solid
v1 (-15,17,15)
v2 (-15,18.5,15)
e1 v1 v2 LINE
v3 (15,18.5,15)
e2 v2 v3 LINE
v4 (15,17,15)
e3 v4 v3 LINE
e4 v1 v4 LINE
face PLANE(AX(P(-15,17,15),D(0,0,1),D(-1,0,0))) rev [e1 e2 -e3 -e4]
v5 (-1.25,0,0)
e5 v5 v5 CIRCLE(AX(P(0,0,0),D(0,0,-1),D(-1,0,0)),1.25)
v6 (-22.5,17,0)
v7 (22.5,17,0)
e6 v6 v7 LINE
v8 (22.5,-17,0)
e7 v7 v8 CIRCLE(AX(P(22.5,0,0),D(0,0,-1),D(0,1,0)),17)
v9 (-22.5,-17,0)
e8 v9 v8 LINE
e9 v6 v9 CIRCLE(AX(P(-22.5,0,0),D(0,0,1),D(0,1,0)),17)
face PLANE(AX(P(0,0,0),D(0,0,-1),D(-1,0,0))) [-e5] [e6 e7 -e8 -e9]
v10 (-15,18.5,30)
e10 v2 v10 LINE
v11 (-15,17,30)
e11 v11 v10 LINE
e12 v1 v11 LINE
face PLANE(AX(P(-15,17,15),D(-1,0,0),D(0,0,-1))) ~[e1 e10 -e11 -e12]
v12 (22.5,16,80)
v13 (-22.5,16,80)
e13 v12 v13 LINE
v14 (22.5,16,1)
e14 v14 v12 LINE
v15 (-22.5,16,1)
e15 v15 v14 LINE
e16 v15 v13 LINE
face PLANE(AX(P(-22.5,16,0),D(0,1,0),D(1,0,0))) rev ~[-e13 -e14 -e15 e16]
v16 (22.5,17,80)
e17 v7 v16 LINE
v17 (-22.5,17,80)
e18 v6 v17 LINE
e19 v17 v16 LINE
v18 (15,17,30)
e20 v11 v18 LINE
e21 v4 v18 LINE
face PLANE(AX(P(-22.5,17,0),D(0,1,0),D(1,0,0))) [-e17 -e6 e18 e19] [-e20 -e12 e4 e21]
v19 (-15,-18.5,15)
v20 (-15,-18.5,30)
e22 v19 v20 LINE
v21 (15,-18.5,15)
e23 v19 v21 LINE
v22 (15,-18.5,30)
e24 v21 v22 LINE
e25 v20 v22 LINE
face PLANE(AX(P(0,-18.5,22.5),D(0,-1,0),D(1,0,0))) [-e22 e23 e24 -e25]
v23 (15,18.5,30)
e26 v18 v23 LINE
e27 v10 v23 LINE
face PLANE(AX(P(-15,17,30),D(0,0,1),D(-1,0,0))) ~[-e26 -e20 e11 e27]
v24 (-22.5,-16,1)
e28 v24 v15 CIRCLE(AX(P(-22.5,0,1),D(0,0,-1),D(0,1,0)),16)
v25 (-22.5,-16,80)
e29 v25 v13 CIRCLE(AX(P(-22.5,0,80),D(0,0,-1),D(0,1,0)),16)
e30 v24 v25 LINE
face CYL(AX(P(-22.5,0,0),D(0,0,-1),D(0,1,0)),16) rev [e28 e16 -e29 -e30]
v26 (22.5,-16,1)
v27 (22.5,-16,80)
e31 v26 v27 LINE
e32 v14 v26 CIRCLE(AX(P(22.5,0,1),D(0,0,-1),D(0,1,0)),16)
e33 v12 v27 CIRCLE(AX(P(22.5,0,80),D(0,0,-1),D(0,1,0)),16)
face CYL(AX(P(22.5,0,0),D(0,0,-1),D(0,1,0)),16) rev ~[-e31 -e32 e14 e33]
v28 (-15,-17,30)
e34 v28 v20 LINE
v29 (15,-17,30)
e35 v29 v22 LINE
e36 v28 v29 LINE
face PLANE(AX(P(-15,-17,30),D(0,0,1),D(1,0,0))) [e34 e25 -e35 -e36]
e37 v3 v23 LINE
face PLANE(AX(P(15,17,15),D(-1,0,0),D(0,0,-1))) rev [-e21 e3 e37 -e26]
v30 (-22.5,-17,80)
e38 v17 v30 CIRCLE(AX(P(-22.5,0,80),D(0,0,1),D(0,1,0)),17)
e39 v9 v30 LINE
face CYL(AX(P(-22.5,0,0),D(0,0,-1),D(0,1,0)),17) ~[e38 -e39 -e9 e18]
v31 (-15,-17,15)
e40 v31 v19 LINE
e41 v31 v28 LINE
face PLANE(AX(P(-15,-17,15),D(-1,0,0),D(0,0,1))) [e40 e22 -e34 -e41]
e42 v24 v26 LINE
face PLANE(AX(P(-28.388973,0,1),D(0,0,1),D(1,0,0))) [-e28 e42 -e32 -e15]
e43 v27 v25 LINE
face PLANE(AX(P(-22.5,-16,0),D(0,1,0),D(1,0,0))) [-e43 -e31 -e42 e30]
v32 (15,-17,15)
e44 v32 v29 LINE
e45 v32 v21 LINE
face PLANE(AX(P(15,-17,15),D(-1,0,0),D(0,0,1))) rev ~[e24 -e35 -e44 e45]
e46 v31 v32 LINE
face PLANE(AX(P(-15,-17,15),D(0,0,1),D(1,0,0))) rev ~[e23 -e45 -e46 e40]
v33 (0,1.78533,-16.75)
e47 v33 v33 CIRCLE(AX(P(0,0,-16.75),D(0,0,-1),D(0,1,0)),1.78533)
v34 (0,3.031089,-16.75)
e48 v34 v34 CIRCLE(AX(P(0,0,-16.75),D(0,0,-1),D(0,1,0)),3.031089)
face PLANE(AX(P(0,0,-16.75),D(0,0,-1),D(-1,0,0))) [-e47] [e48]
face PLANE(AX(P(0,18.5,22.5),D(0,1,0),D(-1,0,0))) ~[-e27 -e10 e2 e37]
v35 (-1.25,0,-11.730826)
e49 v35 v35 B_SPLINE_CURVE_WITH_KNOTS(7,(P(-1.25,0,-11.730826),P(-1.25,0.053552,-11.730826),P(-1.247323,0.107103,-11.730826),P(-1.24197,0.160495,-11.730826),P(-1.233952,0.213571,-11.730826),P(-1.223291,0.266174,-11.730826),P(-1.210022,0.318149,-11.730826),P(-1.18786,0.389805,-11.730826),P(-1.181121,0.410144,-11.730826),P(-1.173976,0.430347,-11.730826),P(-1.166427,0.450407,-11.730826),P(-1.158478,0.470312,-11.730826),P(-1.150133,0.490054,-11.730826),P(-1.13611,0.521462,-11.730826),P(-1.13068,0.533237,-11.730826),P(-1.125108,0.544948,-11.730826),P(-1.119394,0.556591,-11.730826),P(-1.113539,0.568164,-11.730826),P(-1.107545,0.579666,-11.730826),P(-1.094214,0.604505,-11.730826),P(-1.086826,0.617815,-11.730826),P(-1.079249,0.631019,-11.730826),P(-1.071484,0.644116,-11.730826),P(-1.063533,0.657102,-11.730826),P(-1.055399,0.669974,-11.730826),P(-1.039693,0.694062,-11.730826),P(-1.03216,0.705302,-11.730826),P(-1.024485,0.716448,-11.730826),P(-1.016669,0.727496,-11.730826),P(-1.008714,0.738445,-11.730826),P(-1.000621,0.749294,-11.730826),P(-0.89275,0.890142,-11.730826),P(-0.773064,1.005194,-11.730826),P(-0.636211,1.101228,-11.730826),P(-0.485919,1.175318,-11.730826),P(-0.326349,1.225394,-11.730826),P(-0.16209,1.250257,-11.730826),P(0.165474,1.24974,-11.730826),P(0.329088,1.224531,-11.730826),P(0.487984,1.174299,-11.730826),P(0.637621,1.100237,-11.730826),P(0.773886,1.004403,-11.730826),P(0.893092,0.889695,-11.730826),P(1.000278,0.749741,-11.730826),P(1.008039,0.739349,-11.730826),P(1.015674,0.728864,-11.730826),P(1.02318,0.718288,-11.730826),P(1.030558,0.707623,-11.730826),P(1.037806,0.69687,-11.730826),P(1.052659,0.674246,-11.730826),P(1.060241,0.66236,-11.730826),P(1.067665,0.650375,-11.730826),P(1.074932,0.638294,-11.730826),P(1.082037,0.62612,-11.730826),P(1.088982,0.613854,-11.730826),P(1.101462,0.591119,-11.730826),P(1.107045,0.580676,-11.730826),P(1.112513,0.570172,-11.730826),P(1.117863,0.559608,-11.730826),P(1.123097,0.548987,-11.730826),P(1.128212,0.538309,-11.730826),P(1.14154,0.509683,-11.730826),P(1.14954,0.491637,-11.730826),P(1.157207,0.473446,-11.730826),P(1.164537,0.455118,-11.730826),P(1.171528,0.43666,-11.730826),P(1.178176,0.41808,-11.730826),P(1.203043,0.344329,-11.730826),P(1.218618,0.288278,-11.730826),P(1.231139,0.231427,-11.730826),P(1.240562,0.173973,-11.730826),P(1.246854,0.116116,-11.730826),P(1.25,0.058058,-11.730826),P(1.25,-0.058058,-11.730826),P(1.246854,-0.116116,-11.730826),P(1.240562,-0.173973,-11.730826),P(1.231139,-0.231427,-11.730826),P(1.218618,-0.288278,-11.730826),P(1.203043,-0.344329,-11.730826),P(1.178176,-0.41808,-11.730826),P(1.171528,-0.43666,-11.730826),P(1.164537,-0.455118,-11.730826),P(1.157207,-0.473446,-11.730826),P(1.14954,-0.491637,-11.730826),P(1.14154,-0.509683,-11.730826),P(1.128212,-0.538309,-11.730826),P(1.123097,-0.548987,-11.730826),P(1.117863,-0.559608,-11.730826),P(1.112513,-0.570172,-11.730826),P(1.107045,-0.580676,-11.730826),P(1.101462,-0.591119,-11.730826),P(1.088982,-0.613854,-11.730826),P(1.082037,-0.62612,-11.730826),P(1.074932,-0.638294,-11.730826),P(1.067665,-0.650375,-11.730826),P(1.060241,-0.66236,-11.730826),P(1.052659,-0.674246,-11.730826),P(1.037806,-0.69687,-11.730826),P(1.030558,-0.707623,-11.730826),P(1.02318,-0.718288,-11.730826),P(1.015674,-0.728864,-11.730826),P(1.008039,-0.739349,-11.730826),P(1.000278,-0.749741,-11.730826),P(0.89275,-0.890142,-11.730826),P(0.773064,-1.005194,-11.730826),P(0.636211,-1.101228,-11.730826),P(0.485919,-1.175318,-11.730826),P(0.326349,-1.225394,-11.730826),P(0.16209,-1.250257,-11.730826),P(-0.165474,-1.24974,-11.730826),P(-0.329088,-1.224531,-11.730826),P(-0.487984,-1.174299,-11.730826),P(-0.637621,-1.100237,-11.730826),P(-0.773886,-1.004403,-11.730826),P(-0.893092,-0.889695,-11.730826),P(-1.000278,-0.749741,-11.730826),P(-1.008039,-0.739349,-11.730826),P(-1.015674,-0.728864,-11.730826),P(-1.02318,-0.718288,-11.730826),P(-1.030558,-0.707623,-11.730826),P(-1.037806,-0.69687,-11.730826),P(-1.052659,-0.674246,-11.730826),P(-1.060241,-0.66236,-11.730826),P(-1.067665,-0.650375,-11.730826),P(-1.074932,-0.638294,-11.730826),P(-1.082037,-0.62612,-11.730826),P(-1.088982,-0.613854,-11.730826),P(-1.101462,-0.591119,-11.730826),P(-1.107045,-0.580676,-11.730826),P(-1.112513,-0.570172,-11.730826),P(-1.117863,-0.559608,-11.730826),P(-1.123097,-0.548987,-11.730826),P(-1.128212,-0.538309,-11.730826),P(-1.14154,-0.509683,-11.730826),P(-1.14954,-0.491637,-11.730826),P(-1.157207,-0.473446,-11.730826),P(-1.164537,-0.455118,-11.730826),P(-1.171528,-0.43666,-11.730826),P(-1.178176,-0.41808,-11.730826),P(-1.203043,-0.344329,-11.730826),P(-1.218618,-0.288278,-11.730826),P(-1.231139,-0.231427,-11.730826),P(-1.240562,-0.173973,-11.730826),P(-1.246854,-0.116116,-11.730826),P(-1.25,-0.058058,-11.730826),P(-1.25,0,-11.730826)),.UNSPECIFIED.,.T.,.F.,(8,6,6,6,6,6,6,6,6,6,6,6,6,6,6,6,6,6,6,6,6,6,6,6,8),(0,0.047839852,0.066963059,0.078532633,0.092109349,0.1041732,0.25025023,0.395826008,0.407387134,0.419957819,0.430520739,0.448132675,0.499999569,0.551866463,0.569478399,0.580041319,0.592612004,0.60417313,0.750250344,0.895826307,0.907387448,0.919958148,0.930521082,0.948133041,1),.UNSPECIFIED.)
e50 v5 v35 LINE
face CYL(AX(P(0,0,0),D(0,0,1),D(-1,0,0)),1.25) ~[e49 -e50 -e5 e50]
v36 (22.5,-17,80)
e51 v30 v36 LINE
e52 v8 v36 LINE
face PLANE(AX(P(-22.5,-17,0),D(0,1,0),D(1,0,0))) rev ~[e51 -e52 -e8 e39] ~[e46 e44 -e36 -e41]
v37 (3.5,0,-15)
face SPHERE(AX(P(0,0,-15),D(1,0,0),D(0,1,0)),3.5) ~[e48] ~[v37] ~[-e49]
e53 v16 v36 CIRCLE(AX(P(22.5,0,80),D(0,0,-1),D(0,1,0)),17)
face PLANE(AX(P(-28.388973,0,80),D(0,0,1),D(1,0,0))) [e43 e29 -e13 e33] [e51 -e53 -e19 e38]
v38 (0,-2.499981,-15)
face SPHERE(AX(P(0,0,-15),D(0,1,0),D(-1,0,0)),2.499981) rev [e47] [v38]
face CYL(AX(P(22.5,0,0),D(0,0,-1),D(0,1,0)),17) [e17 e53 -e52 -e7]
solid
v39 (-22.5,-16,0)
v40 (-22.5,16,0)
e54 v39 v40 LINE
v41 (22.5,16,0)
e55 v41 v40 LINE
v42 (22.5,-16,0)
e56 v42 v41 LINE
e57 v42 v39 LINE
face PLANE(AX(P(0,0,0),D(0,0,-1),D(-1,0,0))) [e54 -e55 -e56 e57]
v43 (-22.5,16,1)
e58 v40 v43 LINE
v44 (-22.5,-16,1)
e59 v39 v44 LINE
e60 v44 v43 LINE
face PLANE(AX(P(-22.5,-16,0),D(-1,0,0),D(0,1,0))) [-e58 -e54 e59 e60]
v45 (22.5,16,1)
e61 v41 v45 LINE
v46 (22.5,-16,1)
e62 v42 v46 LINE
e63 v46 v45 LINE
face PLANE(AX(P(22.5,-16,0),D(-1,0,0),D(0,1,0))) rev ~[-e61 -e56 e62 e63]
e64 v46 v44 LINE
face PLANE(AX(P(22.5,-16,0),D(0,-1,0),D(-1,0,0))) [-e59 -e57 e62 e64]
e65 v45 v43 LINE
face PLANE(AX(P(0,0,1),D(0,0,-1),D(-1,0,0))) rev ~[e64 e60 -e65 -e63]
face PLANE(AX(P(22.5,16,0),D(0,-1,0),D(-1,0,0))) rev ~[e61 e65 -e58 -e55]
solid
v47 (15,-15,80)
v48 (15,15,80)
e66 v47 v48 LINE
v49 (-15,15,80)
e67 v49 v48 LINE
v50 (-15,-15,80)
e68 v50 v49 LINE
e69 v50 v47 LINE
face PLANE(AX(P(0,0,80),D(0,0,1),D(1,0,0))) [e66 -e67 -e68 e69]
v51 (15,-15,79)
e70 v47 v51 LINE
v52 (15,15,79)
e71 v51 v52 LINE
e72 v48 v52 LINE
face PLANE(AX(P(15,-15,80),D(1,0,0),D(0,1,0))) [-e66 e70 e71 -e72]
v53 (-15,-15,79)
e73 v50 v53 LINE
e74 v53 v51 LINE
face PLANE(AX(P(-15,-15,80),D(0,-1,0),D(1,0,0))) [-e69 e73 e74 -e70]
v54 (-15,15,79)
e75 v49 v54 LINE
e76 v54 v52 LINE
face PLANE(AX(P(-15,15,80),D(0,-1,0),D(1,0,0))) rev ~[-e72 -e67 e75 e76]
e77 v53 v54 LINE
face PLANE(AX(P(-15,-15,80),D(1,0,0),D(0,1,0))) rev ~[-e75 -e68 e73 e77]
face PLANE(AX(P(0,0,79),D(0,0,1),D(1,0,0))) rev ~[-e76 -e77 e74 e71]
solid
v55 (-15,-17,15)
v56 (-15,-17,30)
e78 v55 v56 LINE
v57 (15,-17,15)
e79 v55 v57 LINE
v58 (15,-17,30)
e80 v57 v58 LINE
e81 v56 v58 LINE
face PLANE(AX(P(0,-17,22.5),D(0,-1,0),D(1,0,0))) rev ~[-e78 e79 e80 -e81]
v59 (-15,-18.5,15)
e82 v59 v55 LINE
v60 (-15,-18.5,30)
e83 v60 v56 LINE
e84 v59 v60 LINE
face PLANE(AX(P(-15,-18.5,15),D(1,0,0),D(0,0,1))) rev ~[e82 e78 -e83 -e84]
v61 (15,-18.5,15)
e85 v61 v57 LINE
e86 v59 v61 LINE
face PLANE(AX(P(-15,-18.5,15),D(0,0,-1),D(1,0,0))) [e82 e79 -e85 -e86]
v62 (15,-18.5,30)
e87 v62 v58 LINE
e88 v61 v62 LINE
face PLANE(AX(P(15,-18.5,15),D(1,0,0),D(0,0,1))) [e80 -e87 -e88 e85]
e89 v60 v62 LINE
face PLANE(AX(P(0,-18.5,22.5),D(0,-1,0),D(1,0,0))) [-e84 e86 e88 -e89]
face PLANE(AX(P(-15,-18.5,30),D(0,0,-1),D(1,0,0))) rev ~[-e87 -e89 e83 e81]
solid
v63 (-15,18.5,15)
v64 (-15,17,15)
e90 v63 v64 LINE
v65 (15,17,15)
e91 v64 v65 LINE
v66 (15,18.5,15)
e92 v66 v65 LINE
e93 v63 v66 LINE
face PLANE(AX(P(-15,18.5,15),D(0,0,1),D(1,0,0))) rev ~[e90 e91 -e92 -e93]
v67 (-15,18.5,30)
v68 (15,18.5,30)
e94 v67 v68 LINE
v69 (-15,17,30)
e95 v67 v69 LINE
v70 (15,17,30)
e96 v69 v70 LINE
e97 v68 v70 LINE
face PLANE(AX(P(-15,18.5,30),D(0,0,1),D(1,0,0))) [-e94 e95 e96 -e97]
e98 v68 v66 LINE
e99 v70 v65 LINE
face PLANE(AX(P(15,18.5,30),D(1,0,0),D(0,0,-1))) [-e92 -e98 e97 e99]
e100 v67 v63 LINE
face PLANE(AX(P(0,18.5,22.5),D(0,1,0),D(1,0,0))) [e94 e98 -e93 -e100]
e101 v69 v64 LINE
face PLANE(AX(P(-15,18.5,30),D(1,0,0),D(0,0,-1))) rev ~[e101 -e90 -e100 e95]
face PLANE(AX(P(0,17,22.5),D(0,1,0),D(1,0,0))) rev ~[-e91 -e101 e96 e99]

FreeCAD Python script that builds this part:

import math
import FreeCAD as App
import Part
import Sketcher
from FreeCAD import Vector
Q = App.Units.Quantity


def faces_at(feature, points):
    """Names of the faces that lie closest to the given points."""
    faces = feature.Shape.Faces
    near = lambda p: min(range(len(faces)), key=lambda i: faces[i].distToShape(Part.Vertex(*p))[0])
    return sorted({f"Face{near(p) + 1}" for p in points})


def add_polygon(sketch, points):
    """Adds a closed chain of lines whose ends are joined by coincident constraints."""
    first, n = sketch.GeometryCount, len(points)
    for a, b in zip(points, points[1:] + points[:1]):
        sketch.addGeometry(Part.LineSegment(App.Vector(*a, 0), App.Vector(*b, 0)), False)
    for i in range(n):
        sketch.addConstraint(Sketcher.Constraint("Coincident", first + i, 2, first + (i + 1) % n, 1))

doc = App.newDocument("Part")
body = doc.addObject("PartDesign::Body", "Body")

# Sketch on XY plane
sketch1 = body.newObject("Sketcher::SketchObject", "Sketch")
sketch1.AttachmentSupport = (doc.getObject("XY_Plane"), [""])
sketch1.MapMode = "FlatFace"
sketch1.addGeometry([
    Part.ArcOfCircle(Part.Circle(Vector(-22, 0, 0), Vector(0, 0, 1), 17), math.radians(90), math.radians(270)),
    Part.LineSegment(Vector(-22, -17, 0), Vector(22, -17, 0)),
    Part.ArcOfCircle(Part.Circle(Vector(22, 0, 0), Vector(0, 0, 1), 17), math.radians(-90), math.radians(90)),
    Part.LineSegment(Vector(22, 17, 0), Vector(-22, 17, 0)),
], False)
sketch1.addConstraint([
    Sketcher.Constraint("Tangent", 0, 2, 1, 1),
    Sketcher.Constraint("Tangent", 1, 2, 2, 1),
    Sketcher.Constraint("Tangent", 2, 2, 3, 1),
    Sketcher.Constraint("Tangent", 3, 2, 0, 1),
    Sketcher.Constraint("Horizontal", 1),
    Sketcher.Constraint("Horizontal", 3),
    Sketcher.Constraint("Symmetric", 0, 3, 2, 3, -1, 1),
    Sketcher.Constraint("Radius", 0, Q("17 mm")),
    Sketcher.Constraint("DistanceX", 1, 1, 1, 2, Q("45 mm")),
])
pad1 = body.newObject("PartDesign::Pad", "Pad")
pad1.Profile = sketch1
pad1.Length = 80
doc.recompute()

thickness = body.newObject("PartDesign::Thickness", "Thickness")
thickness.Base = (pad1, faces_at(pad1, [(0, 0, 80)]))
thickness.Value = 1
thickness.Reversed = True
thickness.Join = "Intersection"

# Sketch on XZ plane
sketch2 = body.newObject("Sketcher::SketchObject", "Sketch001")
sketch2.AttachmentSupport = (doc.getObject("XZ_Plane"), [""])
sketch2.MapMode = "FlatFace"
sketch2.AttachmentOffset = App.Placement(Vector(0, 0, 17), App.Rotation())
add_polygon(sketch2, [(-15, 30), (-15, 15), (15, 15), (15, 30)])  # lines 0-3
sketch2.addConstraint([
    Sketcher.Constraint("Vertical", 0),
    Sketcher.Constraint("Horizontal", 1),
    Sketcher.Constraint("Vertical", 2),
    Sketcher.Constraint("Horizontal", 3),
    Sketcher.Constraint("DistanceX", 1, 1, 1, 2, Q("30 mm")),
    Sketcher.Constraint("DistanceY", 0, 2, 0, 1, Q("15 mm")),
    Sketcher.Constraint("DistanceX", 0, 2, -1, 1, Q("15 mm")),
    Sketcher.Constraint("DistanceY", -1, 1, 0, 2, Q("15 mm")),
])
pad2 = body.newObject("PartDesign::Pad", "Pad001")
pad2.Profile = sketch2
pad2.Length = 1.5
doc.recompute()

mirrored = body.newObject("PartDesign::Mirrored", "Mirrored")
mirrored.Originals = [pad2]
mirrored.MirrorPlane = (doc.getObject("XZ_Plane"), [""])
body.Tip = mirrored
body2 = doc.addObject("PartDesign::Body", "Body001")

# Sketch on XZ plane
sketch3 = body2.newObject("Sketcher::SketchObject", "Sketch002")
sketch3.AttachmentSupport = (doc.getObject("XZ_Plane001"), [""])
sketch3.MapMode = "FlatFace"
sketch3.AttachmentOffset = App.Placement(Vector(0, 0, -18.5), App.Rotation())
add_polygon(sketch3, [(-15, 15), (-15, 30), (15, 30), (15, 15)])  # lines 0-3
sketch3.addConstraint([
    Sketcher.Constraint("Vertical", 0),
    Sketcher.Constraint("Horizontal", 1),
    Sketcher.Constraint("Vertical", 2),
    Sketcher.Constraint("Horizontal", 3),
    Sketcher.Constraint("DistanceX", 1, 1, 1, 2, Q("30 mm")),
    Sketcher.Constraint("DistanceY", 0, 1, 0, 2, Q("15 mm")),
    Sketcher.Constraint("DistanceX", 0, 2, -1, 1, Q("15 mm")),
    Sketcher.Constraint("DistanceY", -1, 1, 0, 2, Q("30 mm")),
])
pad3 = body2.newObject("PartDesign::Pad", "Pad002")
pad3.Profile = sketch3
pad3.Length = 1.5
body3 = doc.addObject("PartDesign::Body", "Body002")

# Sketch on XZ plane
sketch4 = body3.newObject("Sketcher::SketchObject", "Sketch003")
sketch4.AttachmentSupport = (doc.getObject("XZ_Plane002"), [""])
sketch4.MapMode = "FlatFace"
sketch4.AttachmentOffset = App.Placement(Vector(0, 0, 18.5), App.Rotation())
add_polygon(sketch4, [(-15, 30), (-15, 15), (15, 15), (15, 30)])  # lines 0-3
sketch4.addConstraint([
    Sketcher.Constraint("Vertical", 0),
    Sketcher.Constraint("Horizontal", 1),
    Sketcher.Constraint("Vertical", 2),
    Sketcher.Constraint("Horizontal", 3),
    Sketcher.Constraint("DistanceX", 1, 1, 1, 2, Q("30 mm")),
    Sketcher.Constraint("DistanceY", 0, 2, 0, 1, Q("15 mm")),
    Sketcher.Constraint("DistanceX", 0, 2, -1, 1, Q("15 mm")),
    Sketcher.Constraint("DistanceY", -1, 1, 0, 2, Q("15 mm")),
])
pad4 = body3.newObject("PartDesign::Pad", "Pad003")
pad4.Profile = sketch4
pad4.Length = 1.5
pad4.Reversed = True
body4 = doc.addObject("PartDesign::Body", "Body003")

# Sketch on XY plane
sketch5 = body4.newObject("Sketcher::SketchObject", "Sketch004")
sketch5.AttachmentSupport = (doc.getObject("XY_Plane003"), [""])
sketch5.MapMode = "FlatFace"
add_polygon(sketch5, [(22, 16), (22, -16), (-22, -16), (-22, 16)])  # lines 0-3
sketch5.addConstraint([
    Sketcher.Constraint("Vertical", 0),
    Sketcher.Constraint("Horizontal", 1),
    Sketcher.Constraint("Vertical", 2),
    Sketcher.Constraint("Horizontal", 3),
    Sketcher.Constraint("Symmetric", 0, 2, 2, 2, -1, 1),
    Sketcher.Constraint("DistanceX", 1, 2, 1, 1, Q("45 mm")),
    Sketcher.Constraint("DistanceY", 0, 2, 0, 1, Q("32 mm")),
])
pad5 = body4.newObject("PartDesign::Pad", "Pad004")
pad5.Profile = sketch5
pad5.Length = 1
doc.recompute()

boolean = body.newObject("PartDesign::Boolean", "Boolean")
boolean.Type = "Fuse"
boolean.addObjects([body4])

# Sketch on XY plane
sketch6 = body.newObject("Sketcher::SketchObject", "Sketch005")
sketch6.AttachmentSupport = (doc.getObject("XY_Plane"), [""])
sketch6.MapMode = "FlatFace"
sketch6.addGeometry(Part.Circle(Vector(0, 0, 0), Vector(0, 0, 1), 1.2), False)
sketch6.addConstraint([
    Sketcher.Constraint("Coincident", 0, 3, -1, 1),
    Sketcher.Constraint("Diameter", 0, Q("2.5 mm")),
])
pad6 = body.newObject("PartDesign::Pad", "Pad005")
pad6.Profile = sketch6
pad6.Length = 15
pad6.Reversed = True

# Sketch on XY plane
sketch7 = body.newObject("Sketcher::SketchObject", "Sketch006")
sketch7.AttachmentSupport = (doc.getObject("XY_Plane"), [""])
sketch7.MapMode = "FlatFace"
sketch7.AttachmentOffset = App.Placement(Vector(0, 0, -15), App.Rotation())
sketch7.addGeometry([
    Part.LineSegment(Vector(3.5, 0, 0), Vector(-3.5, 0, 0)),
    Part.ArcOfCircle(Part.Circle(Vector(0, 0, 0), Vector(0, 0, 1), 3.5), math.radians(0), math.radians(180)),
], False)
sketch7.addConstraint([
    Sketcher.Constraint("Coincident", 0, 1, 1, 1),
    Sketcher.Constraint("Coincident", 1, 2, 0, 2),
    Sketcher.Constraint("Horizontal", 0),
    Sketcher.Constraint("Coincident", 1, 3, -1, 1),
    Sketcher.Constraint("PointOnObject", 0, 1, -1),
    Sketcher.Constraint("Radius", 1, Q("3.5 mm")),
])
revolution = body.newObject("PartDesign::Revolution", "Revolution")
revolution.Profile = sketch7
revolution.ReferenceAxis = (sketch7, ["H_Axis"])
revolution.Angle = 360

# Sketch on XY plane
sketch8 = body.newObject("Sketcher::SketchObject", "Sketch007")
sketch8.AttachmentSupport = (doc.getObject("XY_Plane"), [""])
sketch8.MapMode = "FlatFace"
sketch8.AttachmentOffset = App.Placement(Vector(0, 0, -15), App.Rotation())
sketch8.addGeometry([
    Part.LineSegment(Vector(0, 2.5, 0), Vector(0, -2.5, 0)),
    Part.ArcOfCircle(Part.Circle(Vector(0, 0, 0), Vector(0, 0, 1), 2.5), math.radians(90), math.radians(270)),
], False)
sketch8.addConstraint([
    Sketcher.Constraint("Coincident", 0, 1, 1, 1),
    Sketcher.Constraint("Coincident", 1, 2, 0, 2),
    Sketcher.Constraint("Vertical", 0),
    Sketcher.Constraint("Coincident", 1, 3, -1, 1),
    Sketcher.Constraint("PointOnObject", 0, 1, -2),
    Sketcher.Constraint("Radius", 1, Q("2.499981 mm")),
])
groove = body.newObject("PartDesign::Groove", "Groove")
groove.Profile = sketch8
groove.ReferenceAxis = (sketch8, ["V_Axis"])
groove.Angle = 360

# Sketch on XY plane
sketch9 = body.newObject("Sketcher::SketchObject", "Sketch008")
sketch9.AttachmentSupport = (doc.getObject("XY_Plane"), [""])
sketch9.MapMode = "FlatFace"
sketch9.AttachmentOffset = App.Placement(Vector(0, 0, -16.75), App.Rotation())
sketch9.addGeometry(Part.Circle(Vector(0, 0, 0), Vector(0, 0, 1), 3.5), False)
sketch9.addConstraint([
    Sketcher.Constraint("Coincident", 0, 3, -1, 1),
    Sketcher.Constraint("Diameter", 0, Q("7 mm")),
])
pocket1 = body.newObject("PartDesign::Pocket", "Pocket")
pocket1.Profile = sketch9
pocket1.Type = "ThroughAll"
body5 = doc.addObject("PartDesign::Body", "Body004")

# Sketch on XY plane
sketch10 = body5.newObject("Sketcher::SketchObject", "Sketch009")
sketch10.AttachmentSupport = (doc.getObject("XY_Plane004"), [""])
sketch10.MapMode = "FlatFace"
add_polygon(sketch10, [(22, 16), (22, -16), (-22, -16), (-22, 16)])  # lines 0-3
sketch10.addConstraint([
    Sketcher.Constraint("Vertical", 0),
    Sketcher.Constraint("Horizontal", 1),
    Sketcher.Constraint("Vertical", 2),
    Sketcher.Constraint("Horizontal", 3),
    Sketcher.Constraint("Symmetric", 0, 2, 2, 2, -1, 1),
    Sketcher.Constraint("DistanceX", 1, 2, 1, 1, Q("45 mm")),
    Sketcher.Constraint("DistanceY", 0, 2, 0, 1, Q("32 mm")),
])
pad7 = body5.newObject("PartDesign::Pad", "Pad006")
pad7.Profile = sketch10
pad7.Length = 1
body6 = doc.addObject("PartDesign::Body", "Body005")

# Sketch on XY plane
sketch11 = body6.newObject("Sketcher::SketchObject", "Sketch010")
sketch11.AttachmentSupport = (doc.getObject("XY_Plane005"), [""])
sketch11.MapMode = "FlatFace"
sketch11.AttachmentOffset = App.Placement(Vector(0, 0, 80), App.Rotation())
add_polygon(sketch11, [(-15, 15), (-15, -15), (15, -15), (15, 15)])  # lines 0-3
sketch11.addConstraint([
    Sketcher.Constraint("Vertical", 0),
    Sketcher.Constraint("Horizontal", 1),
    Sketcher.Constraint("Vertical", 2),
    Sketcher.Constraint("Horizontal", 3),
    Sketcher.Constraint("Symmetric", 0, 2, 2, 2, -1, 1),
    Sketcher.Constraint("Equal", 3, 0),
    Sketcher.Constraint("DistanceX", 1, 1, 1, 2, Q("30 mm")),
])
pad8 = body6.newObject("PartDesign::Pad", "Pad007")
pad8.Profile = sketch11
pad8.Length = 1
pad8.Reversed = True

doc.recompute()
